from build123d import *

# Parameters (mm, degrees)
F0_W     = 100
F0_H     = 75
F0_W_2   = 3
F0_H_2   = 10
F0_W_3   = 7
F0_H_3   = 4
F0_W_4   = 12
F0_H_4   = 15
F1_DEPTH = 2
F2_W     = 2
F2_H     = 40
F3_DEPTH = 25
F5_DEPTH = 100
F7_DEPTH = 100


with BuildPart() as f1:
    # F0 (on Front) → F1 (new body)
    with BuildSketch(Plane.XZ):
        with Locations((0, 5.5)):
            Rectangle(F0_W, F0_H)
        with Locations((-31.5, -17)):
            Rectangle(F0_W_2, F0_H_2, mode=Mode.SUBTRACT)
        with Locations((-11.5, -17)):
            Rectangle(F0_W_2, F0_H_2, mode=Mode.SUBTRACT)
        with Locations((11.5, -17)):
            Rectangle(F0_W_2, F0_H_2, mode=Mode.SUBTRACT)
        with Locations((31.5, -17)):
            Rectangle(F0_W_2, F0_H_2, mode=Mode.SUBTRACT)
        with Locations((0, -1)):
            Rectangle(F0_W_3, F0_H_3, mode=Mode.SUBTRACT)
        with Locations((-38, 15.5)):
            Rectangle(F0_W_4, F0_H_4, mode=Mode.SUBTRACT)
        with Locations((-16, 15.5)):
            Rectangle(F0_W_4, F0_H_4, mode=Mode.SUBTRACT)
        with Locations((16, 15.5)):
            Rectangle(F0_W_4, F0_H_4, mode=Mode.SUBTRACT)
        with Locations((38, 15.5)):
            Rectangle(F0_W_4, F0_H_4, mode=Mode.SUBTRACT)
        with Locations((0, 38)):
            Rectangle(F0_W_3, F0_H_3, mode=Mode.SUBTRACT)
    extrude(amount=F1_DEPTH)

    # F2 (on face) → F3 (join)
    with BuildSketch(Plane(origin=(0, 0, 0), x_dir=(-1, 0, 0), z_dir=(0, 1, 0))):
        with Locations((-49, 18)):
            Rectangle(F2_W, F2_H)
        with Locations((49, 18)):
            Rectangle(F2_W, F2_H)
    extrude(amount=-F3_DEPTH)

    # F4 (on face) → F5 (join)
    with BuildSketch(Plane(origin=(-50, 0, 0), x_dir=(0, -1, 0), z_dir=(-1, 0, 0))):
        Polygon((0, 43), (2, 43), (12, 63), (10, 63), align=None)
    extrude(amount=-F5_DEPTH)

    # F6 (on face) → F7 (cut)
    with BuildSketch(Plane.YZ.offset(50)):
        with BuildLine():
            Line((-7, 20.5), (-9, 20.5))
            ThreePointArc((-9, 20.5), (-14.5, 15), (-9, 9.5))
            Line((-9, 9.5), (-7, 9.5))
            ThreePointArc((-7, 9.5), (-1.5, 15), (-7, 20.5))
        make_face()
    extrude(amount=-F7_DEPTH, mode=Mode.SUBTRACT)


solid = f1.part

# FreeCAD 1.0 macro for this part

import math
import FreeCAD as App
import Part
import Sketcher

doc = App.newDocument("Part")
params = doc.addObject("Spreadsheet::Sheet", "Params")
for row, (alias, value) in enumerate([
    ("sketch1_width", "100 mm"),
    ("sketch1_width2", "3 mm"),
    ("sketch1_width3", "7 mm"),
    ("sketch1_width4", "12 mm"),
    ("sketch1_height", "75 mm"),
    ("pad1_length", "2 mm"),
    ("sketch2_width", "2 mm"),
    ("sketch2_height", "40 mm"),
    ("pad2_length", "25 mm"),
    ("sketch3_width", "2 mm"),
    ("pad3_length", "100 mm"),
    ("sketch4_radius", "5.5 mm"),
    ("sketch4_width", "2 mm"),
    ("pocket1_length", "100 mm"),
], start=1):
    params.set(f"A{row}", alias)
    params.set(f"B{row}", "=" + value)
    params.setAlias(f"B{row}", alias)

body = doc.addObject("PartDesign::Body", "Body")

# Sketch on XZ plane
sketch1 = body.newObject("Sketcher::SketchObject", "Sketch")
sketch1.AttachmentSupport = (doc.getObject("XZ_Plane"), [""])
sketch1.MapMode = "FlatFace"
sketch1.addGeometry([
    Part.LineSegment(App.Vector(-50, 43, 0), App.Vector(-50, -32, 0)),  # 0
    Part.LineSegment(App.Vector(-50, -32, 0), App.Vector(50, -32, 0)),  # 1
    Part.LineSegment(App.Vector(50, -32, 0), App.Vector(50, 43, 0)),  # 2
    Part.LineSegment(App.Vector(50, 43, 0), App.Vector(-50, 43, 0)),  # 3
    Part.LineSegment(App.Vector(-30, -22, 0), App.Vector(-33, -22, 0)),  # 4
    Part.LineSegment(App.Vector(-33, -22, 0), App.Vector(-33, -12, 0)),  # 5
    Part.LineSegment(App.Vector(-33, -12, 0), App.Vector(-30, -12, 0)),  # 6
    Part.LineSegment(App.Vector(-30, -12, 0), App.Vector(-30, -22, 0)),  # 7
    Part.LineSegment(App.Vector(-10, -22, 0), App.Vector(-13, -22, 0)),  # 8
    Part.LineSegment(App.Vector(-13, -22, 0), App.Vector(-13, -12, 0)),  # 9
    Part.LineSegment(App.Vector(-13, -12, 0), App.Vector(-10, -12, 0)),  # 10
    Part.LineSegment(App.Vector(-10, -12, 0), App.Vector(-10, -22, 0)),  # 11
    Part.LineSegment(App.Vector(13, -22, 0), App.Vector(10, -22, 0)),  # 12
    Part.LineSegment(App.Vector(10, -22, 0), App.Vector(10, -12, 0)),  # 13
    Part.LineSegment(App.Vector(10, -12, 0), App.Vector(13, -12, 0)),  # 14
    Part.LineSegment(App.Vector(13, -12, 0), App.Vector(13, -22, 0)),  # 15
    Part.LineSegment(App.Vector(33, -22, 0), App.Vector(30, -22, 0)),  # 16
    Part.LineSegment(App.Vector(30, -22, 0), App.Vector(30, -12, 0)),  # 17
    Part.LineSegment(App.Vector(30, -12, 0), App.Vector(33, -12, 0)),  # 18
    Part.LineSegment(App.Vector(33, -12, 0), App.Vector(33, -22, 0)),  # 19
    Part.LineSegment(App.Vector(3.5, -3, 0), App.Vector(-3.5, -3, 0)),  # 20
    Part.LineSegment(App.Vector(-3.5, -3, 0), App.Vector(-3.5, 1, 0)),  # 21
    Part.LineSegment(App.Vector(-3.5, 1, 0), App.Vector(3.5, 1, 0)),  # 22
    Part.LineSegment(App.Vector(3.5, 1, 0), App.Vector(3.5, -3, 0)),  # 23
    Part.LineSegment(App.Vector(-32, 8, 0), App.Vector(-44, 8, 0)),  # 24
    Part.LineSegment(App.Vector(-44, 8, 0), App.Vector(-44, 23, 0)),  # 25
    Part.LineSegment(App.Vector(-44, 23, 0), App.Vector(-32, 23, 0)),  # 26
    Part.LineSegment(App.Vector(-32, 23, 0), App.Vector(-32, 8, 0)),  # 27
    Part.LineSegment(App.Vector(-10, 8, 0), App.Vector(-22, 8, 0)),  # 28
    Part.LineSegment(App.Vector(-22, 8, 0), App.Vector(-22, 23, 0)),  # 29
    Part.LineSegment(App.Vector(-22, 23, 0), App.Vector(-10, 23, 0)),  # 30
    Part.LineSegment(App.Vector(-10, 23, 0), App.Vector(-10, 8, 0)),  # 31
    Part.LineSegment(App.Vector(22, 8, 0), App.Vector(10, 8, 0)),  # 32
    Part.LineSegment(App.Vector(10, 8, 0), App.Vector(10, 23, 0)),  # 33
    Part.LineSegment(App.Vector(10, 23, 0), App.Vector(22, 23, 0)),  # 34
    Part.LineSegment(App.Vector(22, 23, 0), App.Vector(22, 8, 0)),  # 35
    Part.LineSegment(App.Vector(44, 8, 0), App.Vector(32, 8, 0)),  # 36
    Part.LineSegment(App.Vector(32, 8, 0), App.Vector(32, 23, 0)),  # 37
    Part.LineSegment(App.Vector(32, 23, 0), App.Vector(44, 23, 0)),  # 38
    Part.LineSegment(App.Vector(44, 23, 0), App.Vector(44, 8, 0)),  # 39
    Part.LineSegment(App.Vector(3.5, 36, 0), App.Vector(-3.5, 36, 0)),  # 40
    Part.LineSegment(App.Vector(-3.5, 36, 0), App.Vector(-3.5, 40, 0)),  # 41
    Part.LineSegment(App.Vector(-3.5, 40, 0), App.Vector(3.5, 40, 0)),  # 42
    Part.LineSegment(App.Vector(3.5, 40, 0), App.Vector(3.5, 36, 0)),  # 43
], False)
sketch1.addConstraint([
    Sketcher.Constraint("Coincident", 0, 2, 1, 1),
    Sketcher.Constraint("Coincident", 1, 2, 2, 1),
    Sketcher.Constraint("Coincident", 2, 2, 3, 1),
    Sketcher.Constraint("Coincident", 3, 2, 0, 1),
    Sketcher.Constraint("Coincident", 4, 2, 5, 1),
    Sketcher.Constraint("Coincident", 5, 2, 6, 1),
    Sketcher.Constraint("Coincident", 6, 2, 7, 1),
    Sketcher.Constraint("Coincident", 7, 2, 4, 1),
    Sketcher.Constraint("Coincident", 8, 2, 9, 1),
    Sketcher.Constraint("Coincident", 9, 2, 10, 1),
    Sketcher.Constraint("Coincident", 10, 2, 11, 1),
    Sketcher.Constraint("Coincident", 11, 2, 8, 1),
    Sketcher.Constraint("Coincident", 12, 2, 13, 1),
    Sketcher.Constraint("Coincident", 13, 2, 14, 1),
    Sketcher.Constraint("Coincident", 14, 2, 15, 1),
    Sketcher.Constraint("Coincident", 15, 2, 12, 1),
    Sketcher.Constraint("Coincident", 16, 2, 17, 1),
    Sketcher.Constraint("Coincident", 17, 2, 18, 1),
    Sketcher.Constraint("Coincident", 18, 2, 19, 1),
    Sketcher.Constraint("Coincident", 19, 2, 16, 1),
    Sketcher.Constraint("Coincident", 20, 2, 21, 1),
    Sketcher.Constraint("Coincident", 21, 2, 22, 1),
    Sketcher.Constraint("Coincident", 22, 2, 23, 1),
    Sketcher.Constraint("Coincident", 23, 2, 20, 1),
    Sketcher.Constraint("Coincident", 24, 2, 25, 1),
    Sketcher.Constraint("Coincident", 25, 2, 26, 1),
    Sketcher.Constraint("Coincident", 26, 2, 27, 1),
    Sketcher.Constraint("Coincident", 27, 2, 24, 1),
    Sketcher.Constraint("Coincident", 28, 2, 29, 1),
    Sketcher.Constraint("Coincident", 29, 2, 30, 1),
    Sketcher.Constraint("Coincident", 30, 2, 31, 1),
    Sketcher.Constraint("Coincident", 31, 2, 28, 1),
    Sketcher.Constraint("Coincident", 32, 2, 33, 1),
    Sketcher.Constraint("Coincident", 33, 2, 34, 1),
    Sketcher.Constraint("Coincident", 34, 2, 35, 1),
    Sketcher.Constraint("Coincident", 35, 2, 32, 1),
    Sketcher.Constraint("Coincident", 36, 2, 37, 1),
    Sketcher.Constraint("Coincident", 37, 2, 38, 1),
    Sketcher.Constraint("Coincident", 38, 2, 39, 1),
    Sketcher.Constraint("Coincident", 39, 2, 36, 1),
    Sketcher.Constraint("Coincident", 40, 2, 41, 1),
    Sketcher.Constraint("Coincident", 41, 2, 42, 1),
    Sketcher.Constraint("Coincident", 42, 2, 43, 1),
    Sketcher.Constraint("Coincident", 43, 2, 40, 1),
    Sketcher.Constraint("Vertical", 0),
    Sketcher.Constraint("Horizontal", 1),
    Sketcher.Constraint("Vertical", 2),
    Sketcher.Constraint("Horizontal", 3),
    Sketcher.Constraint("Horizontal", 4),
    Sketcher.Constraint("Vertical", 5),
    Sketcher.Constraint("Horizontal", 6),
    Sketcher.Constraint("Vertical", 7),
    Sketcher.Constraint("Horizontal", 8),
    Sketcher.Constraint("Vertical", 9),
    Sketcher.Constraint("Horizontal", 10),
    Sketcher.Constraint("Vertical", 11),
    Sketcher.Constraint("Horizontal", 12),
    Sketcher.Constraint("Vertical", 13),
    Sketcher.Constraint("Horizontal", 14),
    Sketcher.Constraint("Vertical", 15),
    Sketcher.Constraint("Horizontal", 16),
    Sketcher.Constraint("Vertical", 17),
    Sketcher.Constraint("Horizontal", 18),
    Sketcher.Constraint("Vertical", 19),
    Sketcher.Constraint("Horizontal", 20),
    Sketcher.Constraint("Vertical", 21),
    Sketcher.Constraint("Horizontal", 22),
    Sketcher.Constraint("Vertical", 23),
    Sketcher.Constraint("Horizontal", 24),
    Sketcher.Constraint("Vertical", 25),
    Sketcher.Constraint("Horizontal", 26),
    Sketcher.Constraint("Vertical", 27),
    Sketcher.Constraint("Horizontal", 28),
    Sketcher.Constraint("Vertical", 29),
    Sketcher.Constraint("Horizontal", 30),
    Sketcher.Constraint("Vertical", 31),
    Sketcher.Constraint("Horizontal", 32),
    Sketcher.Constraint("Vertical", 33),
    Sketcher.Constraint("Horizontal", 34),
    Sketcher.Constraint("Vertical", 35),
    Sketcher.Constraint("Horizontal", 36),
    Sketcher.Constraint("Vertical", 37),
    Sketcher.Constraint("Horizontal", 38),
    Sketcher.Constraint("Vertical", 39),
    Sketcher.Constraint("Horizontal", 40),
    Sketcher.Constraint("Vertical", 41),
    Sketcher.Constraint("Horizontal", 42),
    Sketcher.Constraint("Vertical", 43),
    Sketcher.Constraint("Symmetric", 11, 2, 12, 2, -2),
    Sketcher.Constraint("Symmetric", 9, 2, 14, 2, -2),
    Sketcher.Constraint("Symmetric", 7, 2, 16, 2, -2),
    Sketcher.Constraint("Symmetric", 5, 2, 18, 2, -2),
    Sketcher.Constraint("Symmetric", 31, 2, 32, 2, -2),
    Sketcher.Constraint("Symmetric", 29, 2, 34, 2, -2),
    Sketcher.Constraint("Symmetric", 27, 2, 36, 2, -2),
    Sketcher.Constraint("Symmetric", 25, 2, 38, 2, -2),
    Sketcher.Constraint("Horizontal", 7, 2, 8, 2),
    Sketcher.Constraint("Horizontal", 6, 2, 9, 2),
    Sketcher.Constraint("Horizontal", 27, 2, 28, 2),
    Sketcher.Constraint("Horizontal", 26, 2, 29, 2),
    Sketcher.Constraint("Vertical", 11, 2, 30, 2),
    Sketcher.Constraint("Vertical", 21, 2, 40, 2),
    Sketcher.Constraint("Vertical", 23, 2, 42, 2),
    Sketcher.Constraint("Equal", 6, 8),
    Sketcher.Constraint("Equal", 26, 28),
    Sketcher.Constraint("Equal", 23, 41),
    Sketcher.Constraint("DistanceX", 1, 1, 1, 2, 100.0),
    Sketcher.Constraint("DistanceX", 4, 2, 4, 1, 3.0),
    Sketcher.Constraint("DistanceX", 20, 2, 20, 1, 7.0),
    Sketcher.Constraint("DistanceX", 24, 2, 24, 1, 12.0),
    Sketcher.Constraint("DistanceY", 0, 2, 0, 1, 75.0),
    Sketcher.Constraint("DistanceY", 5, 1, 5, 2, 10.0),
    Sketcher.Constraint("DistanceY", 21, 1, 21, 2, 4.0),
    Sketcher.Constraint("DistanceY", 25, 1, 25, 2, 15.0),
    Sketcher.Constraint("DistanceX", 0, 2, -1, 1, 50.0),
    Sketcher.Constraint("DistanceY", 0, 2, -1, 1, 32.0),
    Sketcher.Constraint("DistanceX", 4, 2, -1, 1, 33.0),
    Sketcher.Constraint("DistanceY", 4, 2, -1, 1, 22.0),
    Sketcher.Constraint("DistanceX", 8, 2, -1, 1, 13.0),
    Sketcher.Constraint("DistanceY", 20, 2, -1, 1, 3.0),
    Sketcher.Constraint("DistanceX", 24, 2, -1, 1, 44.0),
    Sketcher.Constraint("DistanceY", -1, 1, 24, 2, 8.0),
    Sketcher.Constraint("DistanceY", -1, 1, 40, 2, 36.0),
    Sketcher.Constraint("DistanceX", 20, 2, -1, 1, 3.5),
])
sketch1.setExpression("Constraints[106]", "Params.sketch1_width")
sketch1.setExpression("Constraints[107]", "Params.sketch1_width2")
sketch1.setExpression("Constraints[108]", "Params.sketch1_width3")
sketch1.setExpression("Constraints[109]", "Params.sketch1_width4")
sketch1.setExpression("Constraints[110]", "Params.sketch1_height")
pad1 = body.newObject("PartDesign::Pad", "Pad")
pad1.Profile = sketch1
pad1.setExpression("Length", "Params.pad1_length")

# Sketch on XZ plane
sketch2 = body.newObject("Sketcher::SketchObject", "Sketch001")
sketch2.AttachmentSupport = (doc.getObject("XZ_Plane"), [""])
sketch2.MapMode = "FlatFace"
sketch2.addGeometry([
    Part.LineSegment(App.Vector(50, 38, 0), App.Vector(50, -2, 0)),  # 0
    Part.LineSegment(App.Vector(50, -2, 0), App.Vector(48, -2, 0)),  # 1
    Part.LineSegment(App.Vector(48, -2, 0), App.Vector(48, 38, 0)),  # 2
    Part.LineSegment(App.Vector(48, 38, 0), App.Vector(50, 38, 0)),  # 3
    Part.LineSegment(App.Vector(-48, 38, 0), App.Vector(-48, -2, 0)),  # 4
    Part.LineSegment(App.Vector(-48, -2, 0), App.Vector(-50, -2, 0)),  # 5
    Part.LineSegment(App.Vector(-50, -2, 0), App.Vector(-50, 38, 0)),  # 6
    Part.LineSegment(App.Vector(-50, 38, 0), App.Vector(-48, 38, 0)),  # 7
], False)
sketch2.addConstraint([
    Sketcher.Constraint("Coincident", 0, 2, 1, 1),
    Sketcher.Constraint("Coincident", 1, 2, 2, 1),
    Sketcher.Constraint("Coincident", 2, 2, 3, 1),
    Sketcher.Constraint("Coincident", 3, 2, 0, 1),
    Sketcher.Constraint("Coincident", 4, 2, 5, 1),
    Sketcher.Constraint("Coincident", 5, 2, 6, 1),
    Sketcher.Constraint("Coincident", 6, 2, 7, 1),
    Sketcher.Constraint("Coincident", 7, 2, 4, 1),
    Sketcher.Constraint("Vertical", 0),
    Sketcher.Constraint("Horizontal", 1),
    Sketcher.Constraint("Vertical", 2),
    Sketcher.Constraint("Horizontal", 3),
    Sketcher.Constraint("Vertical", 4),
    Sketcher.Constraint("Horizontal", 5),
    Sketcher.Constraint("Vertical", 6),
    Sketcher.Constraint("Horizontal", 7),
    Sketcher.Constraint("Symmetric", 1, 2, 4, 2, -2),
    Sketcher.Constraint("Symmetric", 3, 2, 6, 2, -2),
    Sketcher.Constraint("DistanceX", 1, 2, 1, 1, 2.0),
    Sketcher.Constraint("DistanceY", 0, 2, 0, 1, 40.0),
    Sketcher.Constraint("DistanceX", -1, 1, 0, 2, 50.0),
    Sketcher.Constraint("DistanceY", 0, 2, -1, 1, 2.0),
])
sketch2.setExpression("Constraints[18]", "Params.sketch2_width")
sketch2.setExpression("Constraints[19]", "Params.sketch2_height")
pad2 = body.newObject("PartDesign::Pad", "Pad001")
pad2.Profile = sketch2
pad2.setExpression("Length", "Params.pad2_length")

# Sketch on YZ plane
sketch3 = body.newObject("Sketcher::SketchObject", "Sketch002")
sketch3.AttachmentSupport = (doc.getObject("YZ_Plane"), [""])
sketch3.MapMode = "FlatFace"
sketch3.AttachmentOffset = App.Placement(App.Vector(0, 0, -50), App.Rotation())
sketch3.addGeometry([
    Part.LineSegment(App.Vector(0, 43, 0), App.Vector(-2, 43, 0)),
    Part.LineSegment(App.Vector(-2, 43, 0), App.Vector(-12, 63, 0)),
    Part.LineSegment(App.Vector(-12, 63, 0), App.Vector(-10, 63, 0)),
    Part.LineSegment(App.Vector(-10, 63, 0), App.Vector(0, 43, 0)),
], False)
sketch3.addConstraint([
    Sketcher.Constraint("Coincident", 0, 2, 1, 1),
    Sketcher.Constraint("Coincident", 1, 2, 2, 1),
    Sketcher.Constraint("Coincident", 2, 2, 3, 1),
    Sketcher.Constraint("Coincident", 3, 2, 0, 1),
    Sketcher.Constraint("Horizontal", 0),
    Sketcher.Constraint("Horizontal", 2),
    Sketcher.Constraint("PointOnObject", 3, 2, -2),
    Sketcher.Constraint("Parallel", 1, 3),
    Sketcher.Constraint("DistanceX", 0, 2, 0, 1, 2.0),
    Sketcher.Constraint("DistanceY", -1, 1, 0, 2, 43.0),
    Sketcher.Constraint("DistanceX", 1, 2, -1, 1, 12.0),
    Sketcher.Constraint("DistanceY", -1, 1, 1, 2, 63.0),
])
sketch3.setExpression("Constraints[8]", "Params.sketch3_width")
pad3 = body.newObject("PartDesign::Pad", "Pad002")
pad3.Profile = sketch3
pad3.setExpression("Length", "Params.pad3_length")

# Sketch on YZ plane
sketch4 = body.newObject("Sketcher::SketchObject", "Sketch003")
sketch4.AttachmentSupport = (doc.getObject("YZ_Plane"), [""])
sketch4.MapMode = "FlatFace"
sketch4.AttachmentOffset = App.Placement(App.Vector(0, 0, 50), App.Rotation())
sketch4.addGeometry([
    Part.LineSegment(App.Vector(-7, 20.5, 0), App.Vector(-9, 20.5, 0)),
    Part.ArcOfCircle(Part.Circle(App.Vector(-9, 15, 0), App.Vector(0, 0, 1), 5.5), math.radians(90), math.radians(270)),
    Part.LineSegment(App.Vector(-9, 9.5, 0), App.Vector(-7, 9.5, 0)),
    Part.ArcOfCircle(Part.Circle(App.Vector(-7, 15, 0), App.Vector(0, 0, 1), 5.5), math.radians(-90), math.radians(90)),
], False)
sketch4.addConstraint([
    Sketcher.Constraint("Tangent", 0, 2, 1, 1),
    Sketcher.Constraint("Tangent", 1, 2, 2, 1),
    Sketcher.Constraint("Tangent", 2, 2, 3, 1),
    Sketcher.Constraint("Tangent", 3, 2, 0, 1),
    Sketcher.Constraint("Horizontal", 0),
    Sketcher.Constraint("Horizontal", 2),
    Sketcher.Constraint("Radius", 1, 5.5),
    Sketcher.Constraint("DistanceX", 0, 2, 0, 1, 2.0),
    Sketcher.Constraint("DistanceX", 1, 3, -1, 1, 9.0),
    Sketcher.Constraint("DistanceY", -1, 1, 1, 3, 15.0),
])
sketch4.setExpression("Constraints[6]", "Params.sketch4_radius")
sketch4.setExpression("Constraints[7]", "Params.sketch4_width")
pocket1 = body.newObject("PartDesign::Pocket", "Pocket")
pocket1.Profile = sketch4
pocket1.setExpression("Length", "Params.pocket1_length")

doc.recompute()
